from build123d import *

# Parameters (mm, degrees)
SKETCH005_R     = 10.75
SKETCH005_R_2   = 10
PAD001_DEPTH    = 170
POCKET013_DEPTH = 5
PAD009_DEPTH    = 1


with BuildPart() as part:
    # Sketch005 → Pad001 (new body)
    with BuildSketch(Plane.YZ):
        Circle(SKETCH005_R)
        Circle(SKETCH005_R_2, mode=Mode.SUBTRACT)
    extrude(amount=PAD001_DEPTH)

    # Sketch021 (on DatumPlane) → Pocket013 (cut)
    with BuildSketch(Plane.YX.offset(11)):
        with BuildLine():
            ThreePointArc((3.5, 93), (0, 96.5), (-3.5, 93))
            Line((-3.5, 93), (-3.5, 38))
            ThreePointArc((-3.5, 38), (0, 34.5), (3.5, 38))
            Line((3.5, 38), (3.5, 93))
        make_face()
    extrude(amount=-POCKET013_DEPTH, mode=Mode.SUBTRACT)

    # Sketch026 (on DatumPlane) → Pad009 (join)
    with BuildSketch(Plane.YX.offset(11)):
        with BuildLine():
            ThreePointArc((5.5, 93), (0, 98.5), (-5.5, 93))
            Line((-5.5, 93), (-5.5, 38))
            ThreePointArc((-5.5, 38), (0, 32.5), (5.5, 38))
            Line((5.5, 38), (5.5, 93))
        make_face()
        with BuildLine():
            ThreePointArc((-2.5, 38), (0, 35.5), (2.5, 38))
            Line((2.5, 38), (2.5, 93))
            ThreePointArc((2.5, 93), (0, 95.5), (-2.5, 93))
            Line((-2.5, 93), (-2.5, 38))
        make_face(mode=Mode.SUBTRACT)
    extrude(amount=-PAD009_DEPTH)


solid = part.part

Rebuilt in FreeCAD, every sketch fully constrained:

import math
import FreeCAD as App
import Part
import Sketcher
from FreeCAD import Vector

doc = App.newDocument("Part")
body = doc.addObject("PartDesign::Body", "Body")

# Sketch on YZ plane
sketch1 = body.newObject("Sketcher::SketchObject", "Sketch")
sketch1.AttachmentSupport = (doc.getObject("YZ_Plane"), [""])
sketch1.MapMode = "FlatFace"
sketch1.addGeometry(Part.Circle(Vector(0, 0, 0), Vector(0, 0, 1), 10.75), False)
sketch1.addGeometry(Part.Circle(Vector(0, 0, 0), Vector(0, 0, 1), 10), False)
sketch1.addConstraint(Sketcher.Constraint("Coincident", 0, 3, -1, 1))
sketch1.addConstraint(Sketcher.Constraint("Coincident", 1, 3, -1, 1))
sketch1.addConstraint(Sketcher.Constraint("Diameter", 1, 20.0))
sketch1.addConstraint(Sketcher.Constraint("Diameter", 0, 21.5))
pad1 = body.newObject("PartDesign::Pad", "Pad")
pad1.Profile = sketch1
pad1.Length = 170

# Sketch on XY plane
sketch2 = body.newObject("Sketcher::SketchObject", "Sketch001")
sketch2.AttachmentSupport = (doc.getObject("XY_Plane"), [""])
sketch2.MapMode = "FlatFace"
sketch2.AttachmentOffset = App.Placement(Vector(0, 0, -11), App.Rotation())
sketch2.addGeometry(Part.ArcOfCircle(Part.Circle(Vector(93, 0, 0), Vector(0, 0, 1), 3.5), math.radians(-90), math.radians(90)), False)
sketch2.addGeometry(Part.LineSegment(Vector(93, -3.5, 0), Vector(38, -3.5, 0)), False)
sketch2.addGeometry(Part.ArcOfCircle(Part.Circle(Vector(38, 0, 0), Vector(0, 0, 1), 3.5), math.radians(90), math.radians(270)), False)
sketch2.addGeometry(Part.LineSegment(Vector(38, 3.5, 0), Vector(93, 3.5, 0)), False)
sketch2.addConstraint(Sketcher.Constraint("Tangent", 0, 1, 1, 1))
sketch2.addConstraint(Sketcher.Constraint("Tangent", 1, 2, 2, 2))
sketch2.addConstraint(Sketcher.Constraint("Tangent", 2, 1, 3, 1))
sketch2.addConstraint(Sketcher.Constraint("Tangent", 3, 2, 0, 2))
sketch2.addConstraint(Sketcher.Constraint("Horizontal", 1))
sketch2.addConstraint(Sketcher.Constraint("Horizontal", 3))
sketch2.addConstraint(Sketcher.Constraint("PointOnObject", 0, 3, -1))
sketch2.addConstraint(Sketcher.Constraint("Radius", 0, 3.5))
sketch2.addConstraint(Sketcher.Constraint("DistanceX", 1, 2, 1, 1, 55.0))
sketch2.addConstraint(Sketcher.Constraint("DistanceX", -1, 1, 0, 3, 93.0))
pocket1 = body.newObject("PartDesign::Pocket", "Pocket")
pocket1.Profile = sketch2
pocket1.Length = 5
pocket1.Reversed = True

# Sketch on XY plane
sketch3 = body.newObject("Sketcher::SketchObject", "Sketch002")
sketch3.AttachmentSupport = (doc.getObject("XY_Plane"), [""])
sketch3.MapMode = "FlatFace"
sketch3.AttachmentOffset = App.Placement(Vector(0, 0, -11), App.Rotation())
sketch3.addGeometry(Part.ArcOfCircle(Part.Circle(Vector(93, 0, 0), Vector(0, 0, 1), 5.5), math.radians(-90), math.radians(90)), False)
sketch3.addGeometry(Part.LineSegment(Vector(93, -5.5, 0), Vector(38, -5.5, 0)), False)
sketch3.addGeometry(Part.ArcOfCircle(Part.Circle(Vector(38, 0, 0), Vector(0, 0, 1), 5.5), math.radians(90), math.radians(270)), False)
sketch3.addGeometry(Part.LineSegment(Vector(38, 5.5, 0), Vector(93, 5.5, 0)), False)
sketch3.addGeometry(Part.ArcOfCircle(Part.Circle(Vector(38, 0, 0), Vector(0, 0, 1), 2.5), math.radians(90), math.radians(270)), False)
sketch3.addGeometry(Part.LineSegment(Vector(38, -2.5, 0), Vector(93, -2.5, 0)), False)
sketch3.addGeometry(Part.ArcOfCircle(Part.Circle(Vector(93, 0, 0), Vector(0, 0, 1), 2.5), math.radians(-90), math.radians(90)), False)
sketch3.addGeometry(Part.LineSegment(Vector(93, 2.5, 0), Vector(38, 2.5, 0)), False)
sketch3.addConstraint(Sketcher.Constraint("Tangent", 0, 1, 1, 1))
sketch3.addConstraint(Sketcher.Constraint("Tangent", 1, 2, 2, 2))
sketch3.addConstraint(Sketcher.Constraint("Tangent", 2, 1, 3, 1))
sketch3.addConstraint(Sketcher.Constraint("Tangent", 3, 2, 0, 2))
sketch3.addConstraint(Sketcher.Constraint("Tangent", 4, 2, 5, 1))
sketch3.addConstraint(Sketcher.Constraint("Tangent", 5, 2, 6, 1))
sketch3.addConstraint(Sketcher.Constraint("Tangent", 6, 2, 7, 1))
sketch3.addConstraint(Sketcher.Constraint("Tangent", 7, 2, 4, 1))
sketch3.addConstraint(Sketcher.Constraint("Horizontal", 1))
sketch3.addConstraint(Sketcher.Constraint("Horizontal", 3))
sketch3.addConstraint(Sketcher.Constraint("Horizontal", 5))
sketch3.addConstraint(Sketcher.Constraint("Horizontal", 7))
sketch3.addConstraint(Sketcher.Constraint("Coincident", 4, 3, 2, 3))
sketch3.addConstraint(Sketcher.Constraint("PointOnObject", 0, 3, -1))
sketch3.addConstraint(Sketcher.Constraint("Vertical", 6, 3, 0, 1))
sketch3.addConstraint(Sketcher.Constraint("Radius", 0, 5.5))
sketch3.addConstraint(Sketcher.Constraint("Radius", 4, 2.5))
sketch3.addConstraint(Sketcher.Constraint("DistanceX", 1, 2, 1, 1, 55.0))
sketch3.addConstraint(Sketcher.Constraint("DistanceX", -1, 1, 0, 3, 93.0))
pad2 = body.newObject("PartDesign::Pad", "Pad001")
pad2.Profile = sketch3
pad2.Length = 1

doc.recompute()
